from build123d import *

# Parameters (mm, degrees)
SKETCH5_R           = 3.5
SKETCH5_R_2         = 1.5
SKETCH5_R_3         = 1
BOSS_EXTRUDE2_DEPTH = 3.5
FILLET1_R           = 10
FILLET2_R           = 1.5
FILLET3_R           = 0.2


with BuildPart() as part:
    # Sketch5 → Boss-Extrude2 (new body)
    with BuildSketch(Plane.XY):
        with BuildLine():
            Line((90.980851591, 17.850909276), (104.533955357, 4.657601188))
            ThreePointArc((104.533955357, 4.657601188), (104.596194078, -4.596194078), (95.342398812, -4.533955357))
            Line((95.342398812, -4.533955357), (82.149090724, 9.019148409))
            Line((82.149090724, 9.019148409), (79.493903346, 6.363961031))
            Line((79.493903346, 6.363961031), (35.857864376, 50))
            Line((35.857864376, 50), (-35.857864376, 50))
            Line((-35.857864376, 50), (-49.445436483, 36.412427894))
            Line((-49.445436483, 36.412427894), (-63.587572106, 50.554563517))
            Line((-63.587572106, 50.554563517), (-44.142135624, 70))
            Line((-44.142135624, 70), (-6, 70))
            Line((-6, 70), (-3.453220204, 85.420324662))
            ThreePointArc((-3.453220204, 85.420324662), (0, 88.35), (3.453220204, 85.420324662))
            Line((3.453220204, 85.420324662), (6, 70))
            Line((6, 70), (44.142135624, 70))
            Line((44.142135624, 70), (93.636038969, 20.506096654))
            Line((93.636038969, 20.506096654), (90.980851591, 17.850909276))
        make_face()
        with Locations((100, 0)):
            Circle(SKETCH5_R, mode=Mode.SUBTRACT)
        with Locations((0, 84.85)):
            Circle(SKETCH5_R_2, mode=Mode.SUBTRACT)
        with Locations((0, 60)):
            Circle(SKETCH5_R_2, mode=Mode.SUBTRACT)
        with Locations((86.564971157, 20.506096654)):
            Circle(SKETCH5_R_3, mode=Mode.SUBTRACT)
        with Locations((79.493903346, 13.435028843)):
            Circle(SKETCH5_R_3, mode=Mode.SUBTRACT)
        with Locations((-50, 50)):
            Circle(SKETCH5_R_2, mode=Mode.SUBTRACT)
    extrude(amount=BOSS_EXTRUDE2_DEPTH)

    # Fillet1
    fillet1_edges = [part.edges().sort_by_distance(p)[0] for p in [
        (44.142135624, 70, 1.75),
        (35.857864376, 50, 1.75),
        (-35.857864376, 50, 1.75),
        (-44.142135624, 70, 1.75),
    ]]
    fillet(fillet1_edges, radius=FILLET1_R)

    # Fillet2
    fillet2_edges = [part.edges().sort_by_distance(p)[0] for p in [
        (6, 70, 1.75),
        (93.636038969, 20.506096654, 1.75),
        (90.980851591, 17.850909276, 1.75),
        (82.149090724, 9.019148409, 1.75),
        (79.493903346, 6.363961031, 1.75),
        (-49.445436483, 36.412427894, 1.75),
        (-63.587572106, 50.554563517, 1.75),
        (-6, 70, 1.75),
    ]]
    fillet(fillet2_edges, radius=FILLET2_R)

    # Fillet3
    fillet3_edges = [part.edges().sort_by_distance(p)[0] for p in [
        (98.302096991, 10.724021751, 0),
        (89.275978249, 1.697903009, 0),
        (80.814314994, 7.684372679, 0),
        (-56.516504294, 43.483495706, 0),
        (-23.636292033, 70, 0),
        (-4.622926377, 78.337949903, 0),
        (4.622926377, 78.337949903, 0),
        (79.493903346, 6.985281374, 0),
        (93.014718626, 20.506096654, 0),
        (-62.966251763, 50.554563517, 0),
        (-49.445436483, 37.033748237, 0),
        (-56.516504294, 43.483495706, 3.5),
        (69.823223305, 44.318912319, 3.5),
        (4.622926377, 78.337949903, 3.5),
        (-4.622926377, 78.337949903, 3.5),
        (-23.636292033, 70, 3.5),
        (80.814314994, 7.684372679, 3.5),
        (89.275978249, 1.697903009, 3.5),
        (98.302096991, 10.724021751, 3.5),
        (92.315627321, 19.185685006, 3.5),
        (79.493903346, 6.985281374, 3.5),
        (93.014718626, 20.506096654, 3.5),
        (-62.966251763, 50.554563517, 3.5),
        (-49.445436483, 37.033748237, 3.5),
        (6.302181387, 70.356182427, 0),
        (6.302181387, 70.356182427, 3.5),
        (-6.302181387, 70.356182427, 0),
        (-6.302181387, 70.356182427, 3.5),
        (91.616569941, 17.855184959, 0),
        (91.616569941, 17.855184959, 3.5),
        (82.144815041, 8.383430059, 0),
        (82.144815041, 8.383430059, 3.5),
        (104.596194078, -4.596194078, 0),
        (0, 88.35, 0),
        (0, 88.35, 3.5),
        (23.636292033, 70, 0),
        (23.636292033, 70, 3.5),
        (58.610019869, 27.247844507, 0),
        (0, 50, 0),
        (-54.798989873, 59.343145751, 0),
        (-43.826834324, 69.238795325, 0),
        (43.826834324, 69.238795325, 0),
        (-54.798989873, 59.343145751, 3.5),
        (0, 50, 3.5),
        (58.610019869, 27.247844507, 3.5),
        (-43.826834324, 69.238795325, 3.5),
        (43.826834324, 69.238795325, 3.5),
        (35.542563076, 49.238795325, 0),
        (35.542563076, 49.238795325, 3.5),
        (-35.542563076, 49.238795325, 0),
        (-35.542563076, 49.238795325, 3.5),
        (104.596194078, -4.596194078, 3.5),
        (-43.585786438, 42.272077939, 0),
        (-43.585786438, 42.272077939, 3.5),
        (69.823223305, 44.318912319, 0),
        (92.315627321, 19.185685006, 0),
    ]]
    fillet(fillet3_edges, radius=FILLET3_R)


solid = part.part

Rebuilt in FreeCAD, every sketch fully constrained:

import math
import FreeCAD as App
import Part
import Sketcher
from FreeCAD import Vector
Q = App.Units.Quantity


def edges_at(feature, points):
    """Names of the edges that pass closest to the given points."""
    edges = feature.Shape.Edges
    near = lambda p: min(range(len(edges)), key=lambda i: edges[i].distToShape(Part.Vertex(*p))[0])
    return sorted({f"Edge{near(p) + 1}" for p in points})

doc = App.newDocument("Part")
body = doc.addObject("PartDesign::Body", "Body")

sketch1 = body.newObject("Sketcher::SketchObject", "Sketch")
sketch1.AttachmentSupport = (doc.getObject("XY_Plane"), [""])
sketch1.MapMode = "FlatFace"
sketch1.addGeometry(Part.LineSegment(Vector(104.533955, 4.657601, 0), Vector(90.980852, 17.850909, 0)), False)
sketch1.addGeometry(Part.LineSegment(Vector(90.980852, 17.850909, 0), Vector(93.636039, 20.506097, 0)), False)
sketch1.addGeometry(Part.LineSegment(Vector(93.636039, 20.506097, 0), Vector(44.142136, 70, 0)), False)
sketch1.addGeometry(Part.LineSegment(Vector(44.142136, 70, 0), Vector(6, 70, 0)), False)
sketch1.addGeometry(Part.LineSegment(Vector(6, 70, 0), Vector(3.45322, 85.420325, 0)), False)
sketch1.addGeometry(Part.ArcOfCircle(Part.Circle(Vector(0, 84.85, 0), Vector(0, 0, 1), 3.5), math.radians(9.378161), math.radians(170.621839)), False)
sketch1.addGeometry(Part.LineSegment(Vector(-3.45322, 85.420325, 0), Vector(-6, 70, 0)), False)
sketch1.addGeometry(Part.LineSegment(Vector(-6, 70, 0), Vector(-44.142136, 70, 0)), False)
sketch1.addGeometry(Part.LineSegment(Vector(-44.142136, 70, 0), Vector(-63.587572, 50.554564, 0)), False)
sketch1.addGeometry(Part.LineSegment(Vector(-63.587572, 50.554564, 0), Vector(-49.445436, 36.412428, 0)), False)
sketch1.addGeometry(Part.LineSegment(Vector(-49.445436, 36.412428, 0), Vector(-35.857864, 50, 0)), False)
sketch1.addGeometry(Part.LineSegment(Vector(-35.857864, 50, 0), Vector(35.857864, 50, 0)), False)
sketch1.addGeometry(Part.LineSegment(Vector(35.857864, 50, 0), Vector(79.493903, 6.363961, 0)), False)
sketch1.addGeometry(Part.LineSegment(Vector(79.493903, 6.363961, 0), Vector(82.149091, 9.019148, 0)), False)
sketch1.addGeometry(Part.LineSegment(Vector(82.149091, 9.019148, 0), Vector(95.342399, -4.533955, 0)), False)
sketch1.addGeometry(Part.ArcOfCircle(Part.Circle(Vector(100, 0, 0), Vector(0, 0, 1), 6.5), math.radians(-135.770703), math.radians(45.770703)), False)
sketch1.addGeometry(Part.Circle(Vector(100, 0, 0), Vector(0, 0, 1), 3.5), False)
sketch1.addGeometry(Part.Circle(Vector(79.493903, 13.435029, 0), Vector(0, 0, 1), 1), False)
sketch1.addGeometry(Part.Circle(Vector(86.564971, 20.506097, 0), Vector(0, 0, 1), 1), False)
sketch1.addGeometry(Part.Circle(Vector(0, 60, 0), Vector(0, 0, 1), 1.5), False)
sketch1.addGeometry(Part.Circle(Vector(-50, 50, 0), Vector(0, 0, 1), 1.5), False)
sketch1.addGeometry(Part.Circle(Vector(0, 84.85, 0), Vector(0, 0, 1), 1.5), False)
sketch1.addConstraint(Sketcher.Constraint("Coincident", 0, 2, 1, 1))
sketch1.addConstraint(Sketcher.Constraint("Coincident", 1, 2, 2, 1))
sketch1.addConstraint(Sketcher.Constraint("Coincident", 2, 2, 3, 1))
sketch1.addConstraint(Sketcher.Constraint("Coincident", 3, 2, 4, 1))
sketch1.addConstraint(Sketcher.Constraint("Tangent", 4, 2, 5, 1))
sketch1.addConstraint(Sketcher.Constraint("Tangent", 5, 2, 6, 1))
sketch1.addConstraint(Sketcher.Constraint("Coincident", 6, 2, 7, 1))
sketch1.addConstraint(Sketcher.Constraint("Coincident", 7, 2, 8, 1))
sketch1.addConstraint(Sketcher.Constraint("Coincident", 8, 2, 9, 1))
sketch1.addConstraint(Sketcher.Constraint("Coincident", 9, 2, 10, 1))
sketch1.addConstraint(Sketcher.Constraint("Coincident", 10, 2, 11, 1))
sketch1.addConstraint(Sketcher.Constraint("Coincident", 11, 2, 12, 1))
sketch1.addConstraint(Sketcher.Constraint("Coincident", 12, 2, 13, 1))
sketch1.addConstraint(Sketcher.Constraint("Coincident", 13, 2, 14, 1))
sketch1.addConstraint(Sketcher.Constraint("Tangent", 14, 2, 15, 1))
sketch1.addConstraint(Sketcher.Constraint("Tangent", 15, 2, 0, 1))
sketch1.addConstraint(Sketcher.Constraint("Horizontal", 3))
sketch1.addConstraint(Sketcher.Constraint("Horizontal", 7))
sketch1.addConstraint(Sketcher.Constraint("Horizontal", 11))
sketch1.addConstraint(Sketcher.Constraint("Coincident", 16, 3, 15, 3))
sketch1.addConstraint(Sketcher.Constraint("Coincident", 21, 3, 5, 3))
sketch1.addConstraint(Sketcher.Constraint("Equal", 5, 16))
sketch1.addConstraint(Sketcher.Constraint("Equal", 17, 18))
sketch1.addConstraint(Sketcher.Constraint("Equal", 19, 20))
sketch1.addConstraint(Sketcher.Constraint("Equal", 20, 21))
sketch1.addConstraint(Sketcher.Constraint("Symmetric", 4, 2, 5, 2, -2))
sketch1.addConstraint(Sketcher.Constraint("Symmetric", 2, 2, 7, 2, -2))
sketch1.addConstraint(Sketcher.Constraint("PointOnObject", 15, 3, -1))
sketch1.addConstraint(Sketcher.Constraint("PointOnObject", 19, 3, -2))
sketch1.addConstraint(Sketcher.Constraint("Perpendicular", 1, 2))
sketch1.addConstraint(Sketcher.Constraint("Perpendicular", 2, 8))
sketch1.addConstraint(Sketcher.Constraint("Perpendicular", 8, 9))
sketch1.addConstraint(Sketcher.Constraint("Perpendicular", 9, 10))
sketch1.addConstraint(Sketcher.Constraint("Perpendicular", 10, 12))
sketch1.addConstraint(Sketcher.Constraint("Perpendicular", 12, 13))
sketch1.addConstraint(Sketcher.Constraint("Horizontal", 18, 3, 1, 2))
sketch1.addConstraint(Sketcher.Constraint("Horizontal", 20, 3, 10, 2))
sketch1.addConstraint(Sketcher.Constraint("Vertical", 17, 3, 12, 2))
sketch1.addConstraint(Sketcher.Constraint("Equal", 1, 13))
sketch1.addConstraint(Sketcher.Constraint("Equal", 0, 14))
sketch1.addConstraint(Sketcher.Constraint("Diameter", 16, Q("7 mm")))
sketch1.addConstraint(Sketcher.Constraint("Diameter", 17, Q("2 mm")))
sketch1.addConstraint(Sketcher.Constraint("Diameter", 19, Q("3 mm")))
sketch1.addConstraint(Sketcher.Constraint("Radius", 15, Q("6.5 mm")))
sketch1.addConstraint(Sketcher.Constraint("Angle", 1, Q("45 deg")))
sketch1.addConstraint(Sketcher.Constraint("Distance", 9, Q("20 mm")))
sketch1.addConstraint(Sketcher.Constraint("DistanceX", -1, 1, 15, 3, Q("100 mm")))
sketch1.addConstraint(Sketcher.Constraint("DistanceY", -1, 1, 19, 3, Q("60 mm")))
sketch1.addConstraint(Sketcher.Constraint("DistanceX", 20, 3, -1, 1, Q("50 mm")))
sketch1.addConstraint(Sketcher.Constraint("DistanceY", -1, 1, 20, 3, Q("50 mm")))
sketch1.addConstraint(Sketcher.Constraint("DistanceY", -1, 1, 2, 2, Q("70 mm")))
sketch1.addConstraint(Sketcher.Constraint("DistanceX", -1, 1, 3, 2, Q("6 mm")))
sketch1.addConstraint(Sketcher.Constraint("Distance", 8, Q("27.5 mm")))
sketch1.addConstraint(Sketcher.Constraint("DistanceY", -1, 1, 5, 3, Q("84.85 mm")))
sketch1.addConstraint(Sketcher.Constraint("DistanceX", 11, 1, 11, 2, Q("71.715729 mm")))
sketch1.addConstraint(Sketcher.Constraint("DistanceX", -1, 1, 14, 2, Q("95.342399 mm")))
sketch1.addConstraint(Sketcher.Constraint("Distance", 0, Q("18.91428 mm")))
sketch1.addConstraint(Sketcher.Constraint("Distance", 2, Q("69.994949 mm")))
sketch1.addConstraint(Sketcher.Constraint("DistanceY", -1, 1, 17, 3, Q("13.435029 mm")))
sketch1.addConstraint(Sketcher.Constraint("DistanceX", -1, 1, 18, 3, Q("86.564971 mm")))
pad1 = body.newObject("PartDesign::Pad", "Pad")
pad1.Profile = sketch1
pad1.Length = 3.5
doc.recompute()

fillet = body.newObject("PartDesign::Fillet", "Fillet")
fillet.Base = (pad1, edges_at(pad1, [
    (44.142, 70, 1.75),
    (35.858, 50, 1.75),
    (-35.858, 50, 1.75),
    (-44.142, 70, 1.75),
]))
fillet.Radius = 10
doc.recompute()

fillet2 = body.newObject("PartDesign::Fillet", "Fillet001")
fillet2.Base = (fillet, edges_at(fillet, [
    (6, 70, 1.75),
    (93.636, 20.506, 1.75),
    (90.981, 17.851, 1.75),
    (82.149, 9.019, 1.75),
    (79.494, 6.364, 1.75),
    (-49.445, 36.412, 1.75),
    (-63.588, 50.555, 1.75),
    (-6, 70, 1.75),
]))
fillet2.Radius = 1.5
doc.recompute()

fillet3 = body.newObject("PartDesign::Fillet", "Fillet002")
fillet3.Base = (fillet2, edges_at(fillet2, [
    (98.302, 10.724, 0),
    (89.276, 1.698, 0),
    (80.814, 7.684, 0),
    (-56.517, 43.483, 0),
    (-23.636, 70, 0),
    (-4.623, 78.338, 0),
    (4.623, 78.338, 0),
    (79.494, 6.985, 0),
    (93.015, 20.506, 0),
    (-62.966, 50.555, 0),
    (-49.445, 37.034, 0),
    (-56.517, 43.483, 3.5),
    (69.823, 44.319, 3.5),
    (4.623, 78.338, 3.5),
    (-4.623, 78.338, 3.5),
    (-23.636, 70, 3.5),
    (80.814, 7.684, 3.5),
    (89.276, 1.698, 3.5),
    (98.302, 10.724, 3.5),
    (92.316, 19.186, 3.5),
    (79.494, 6.985, 3.5),
    (93.015, 20.506, 3.5),
    (-62.966, 50.555, 3.5),
    (-49.445, 37.034, 3.5),
    (6.302, 70.356, 0),
    (6.302, 70.356, 3.5),
    (-6.302, 70.356, 0),
    (-6.302, 70.356, 3.5),
    (91.617, 17.855, 0),
    (91.617, 17.855, 3.5),
    (82.145, 8.383, 0),
    (82.145, 8.383, 3.5),
    (104.596, -4.596, 0),
    (0, 88.35, 0),
    (0, 88.35, 3.5),
    (23.636, 70, 0),
    (23.636, 70, 3.5),
    (58.61, 27.248, 0),
    (0, 50, 0),
    (-54.799, 59.343, 0),
    (-43.827, 69.239, 0),
    (43.827, 69.239, 0),
    (-54.799, 59.343, 3.5),
    (0, 50, 3.5),
    (58.61, 27.248, 3.5),
    (-43.827, 69.239, 3.5),
    (43.827, 69.239, 3.5),
    (35.543, 49.239, 0),
    (35.543, 49.239, 3.5),
    (-35.543, 49.239, 0),
    (-35.543, 49.239, 3.5),
    (104.596, -4.596, 3.5),
    (-43.586, 42.272, 0),
    (-43.586, 42.272, 3.5),
    (69.823, 44.319, 0),
    (92.316, 19.186, 0),
]))
fillet3.Radius = 0.2

doc.recompute()
